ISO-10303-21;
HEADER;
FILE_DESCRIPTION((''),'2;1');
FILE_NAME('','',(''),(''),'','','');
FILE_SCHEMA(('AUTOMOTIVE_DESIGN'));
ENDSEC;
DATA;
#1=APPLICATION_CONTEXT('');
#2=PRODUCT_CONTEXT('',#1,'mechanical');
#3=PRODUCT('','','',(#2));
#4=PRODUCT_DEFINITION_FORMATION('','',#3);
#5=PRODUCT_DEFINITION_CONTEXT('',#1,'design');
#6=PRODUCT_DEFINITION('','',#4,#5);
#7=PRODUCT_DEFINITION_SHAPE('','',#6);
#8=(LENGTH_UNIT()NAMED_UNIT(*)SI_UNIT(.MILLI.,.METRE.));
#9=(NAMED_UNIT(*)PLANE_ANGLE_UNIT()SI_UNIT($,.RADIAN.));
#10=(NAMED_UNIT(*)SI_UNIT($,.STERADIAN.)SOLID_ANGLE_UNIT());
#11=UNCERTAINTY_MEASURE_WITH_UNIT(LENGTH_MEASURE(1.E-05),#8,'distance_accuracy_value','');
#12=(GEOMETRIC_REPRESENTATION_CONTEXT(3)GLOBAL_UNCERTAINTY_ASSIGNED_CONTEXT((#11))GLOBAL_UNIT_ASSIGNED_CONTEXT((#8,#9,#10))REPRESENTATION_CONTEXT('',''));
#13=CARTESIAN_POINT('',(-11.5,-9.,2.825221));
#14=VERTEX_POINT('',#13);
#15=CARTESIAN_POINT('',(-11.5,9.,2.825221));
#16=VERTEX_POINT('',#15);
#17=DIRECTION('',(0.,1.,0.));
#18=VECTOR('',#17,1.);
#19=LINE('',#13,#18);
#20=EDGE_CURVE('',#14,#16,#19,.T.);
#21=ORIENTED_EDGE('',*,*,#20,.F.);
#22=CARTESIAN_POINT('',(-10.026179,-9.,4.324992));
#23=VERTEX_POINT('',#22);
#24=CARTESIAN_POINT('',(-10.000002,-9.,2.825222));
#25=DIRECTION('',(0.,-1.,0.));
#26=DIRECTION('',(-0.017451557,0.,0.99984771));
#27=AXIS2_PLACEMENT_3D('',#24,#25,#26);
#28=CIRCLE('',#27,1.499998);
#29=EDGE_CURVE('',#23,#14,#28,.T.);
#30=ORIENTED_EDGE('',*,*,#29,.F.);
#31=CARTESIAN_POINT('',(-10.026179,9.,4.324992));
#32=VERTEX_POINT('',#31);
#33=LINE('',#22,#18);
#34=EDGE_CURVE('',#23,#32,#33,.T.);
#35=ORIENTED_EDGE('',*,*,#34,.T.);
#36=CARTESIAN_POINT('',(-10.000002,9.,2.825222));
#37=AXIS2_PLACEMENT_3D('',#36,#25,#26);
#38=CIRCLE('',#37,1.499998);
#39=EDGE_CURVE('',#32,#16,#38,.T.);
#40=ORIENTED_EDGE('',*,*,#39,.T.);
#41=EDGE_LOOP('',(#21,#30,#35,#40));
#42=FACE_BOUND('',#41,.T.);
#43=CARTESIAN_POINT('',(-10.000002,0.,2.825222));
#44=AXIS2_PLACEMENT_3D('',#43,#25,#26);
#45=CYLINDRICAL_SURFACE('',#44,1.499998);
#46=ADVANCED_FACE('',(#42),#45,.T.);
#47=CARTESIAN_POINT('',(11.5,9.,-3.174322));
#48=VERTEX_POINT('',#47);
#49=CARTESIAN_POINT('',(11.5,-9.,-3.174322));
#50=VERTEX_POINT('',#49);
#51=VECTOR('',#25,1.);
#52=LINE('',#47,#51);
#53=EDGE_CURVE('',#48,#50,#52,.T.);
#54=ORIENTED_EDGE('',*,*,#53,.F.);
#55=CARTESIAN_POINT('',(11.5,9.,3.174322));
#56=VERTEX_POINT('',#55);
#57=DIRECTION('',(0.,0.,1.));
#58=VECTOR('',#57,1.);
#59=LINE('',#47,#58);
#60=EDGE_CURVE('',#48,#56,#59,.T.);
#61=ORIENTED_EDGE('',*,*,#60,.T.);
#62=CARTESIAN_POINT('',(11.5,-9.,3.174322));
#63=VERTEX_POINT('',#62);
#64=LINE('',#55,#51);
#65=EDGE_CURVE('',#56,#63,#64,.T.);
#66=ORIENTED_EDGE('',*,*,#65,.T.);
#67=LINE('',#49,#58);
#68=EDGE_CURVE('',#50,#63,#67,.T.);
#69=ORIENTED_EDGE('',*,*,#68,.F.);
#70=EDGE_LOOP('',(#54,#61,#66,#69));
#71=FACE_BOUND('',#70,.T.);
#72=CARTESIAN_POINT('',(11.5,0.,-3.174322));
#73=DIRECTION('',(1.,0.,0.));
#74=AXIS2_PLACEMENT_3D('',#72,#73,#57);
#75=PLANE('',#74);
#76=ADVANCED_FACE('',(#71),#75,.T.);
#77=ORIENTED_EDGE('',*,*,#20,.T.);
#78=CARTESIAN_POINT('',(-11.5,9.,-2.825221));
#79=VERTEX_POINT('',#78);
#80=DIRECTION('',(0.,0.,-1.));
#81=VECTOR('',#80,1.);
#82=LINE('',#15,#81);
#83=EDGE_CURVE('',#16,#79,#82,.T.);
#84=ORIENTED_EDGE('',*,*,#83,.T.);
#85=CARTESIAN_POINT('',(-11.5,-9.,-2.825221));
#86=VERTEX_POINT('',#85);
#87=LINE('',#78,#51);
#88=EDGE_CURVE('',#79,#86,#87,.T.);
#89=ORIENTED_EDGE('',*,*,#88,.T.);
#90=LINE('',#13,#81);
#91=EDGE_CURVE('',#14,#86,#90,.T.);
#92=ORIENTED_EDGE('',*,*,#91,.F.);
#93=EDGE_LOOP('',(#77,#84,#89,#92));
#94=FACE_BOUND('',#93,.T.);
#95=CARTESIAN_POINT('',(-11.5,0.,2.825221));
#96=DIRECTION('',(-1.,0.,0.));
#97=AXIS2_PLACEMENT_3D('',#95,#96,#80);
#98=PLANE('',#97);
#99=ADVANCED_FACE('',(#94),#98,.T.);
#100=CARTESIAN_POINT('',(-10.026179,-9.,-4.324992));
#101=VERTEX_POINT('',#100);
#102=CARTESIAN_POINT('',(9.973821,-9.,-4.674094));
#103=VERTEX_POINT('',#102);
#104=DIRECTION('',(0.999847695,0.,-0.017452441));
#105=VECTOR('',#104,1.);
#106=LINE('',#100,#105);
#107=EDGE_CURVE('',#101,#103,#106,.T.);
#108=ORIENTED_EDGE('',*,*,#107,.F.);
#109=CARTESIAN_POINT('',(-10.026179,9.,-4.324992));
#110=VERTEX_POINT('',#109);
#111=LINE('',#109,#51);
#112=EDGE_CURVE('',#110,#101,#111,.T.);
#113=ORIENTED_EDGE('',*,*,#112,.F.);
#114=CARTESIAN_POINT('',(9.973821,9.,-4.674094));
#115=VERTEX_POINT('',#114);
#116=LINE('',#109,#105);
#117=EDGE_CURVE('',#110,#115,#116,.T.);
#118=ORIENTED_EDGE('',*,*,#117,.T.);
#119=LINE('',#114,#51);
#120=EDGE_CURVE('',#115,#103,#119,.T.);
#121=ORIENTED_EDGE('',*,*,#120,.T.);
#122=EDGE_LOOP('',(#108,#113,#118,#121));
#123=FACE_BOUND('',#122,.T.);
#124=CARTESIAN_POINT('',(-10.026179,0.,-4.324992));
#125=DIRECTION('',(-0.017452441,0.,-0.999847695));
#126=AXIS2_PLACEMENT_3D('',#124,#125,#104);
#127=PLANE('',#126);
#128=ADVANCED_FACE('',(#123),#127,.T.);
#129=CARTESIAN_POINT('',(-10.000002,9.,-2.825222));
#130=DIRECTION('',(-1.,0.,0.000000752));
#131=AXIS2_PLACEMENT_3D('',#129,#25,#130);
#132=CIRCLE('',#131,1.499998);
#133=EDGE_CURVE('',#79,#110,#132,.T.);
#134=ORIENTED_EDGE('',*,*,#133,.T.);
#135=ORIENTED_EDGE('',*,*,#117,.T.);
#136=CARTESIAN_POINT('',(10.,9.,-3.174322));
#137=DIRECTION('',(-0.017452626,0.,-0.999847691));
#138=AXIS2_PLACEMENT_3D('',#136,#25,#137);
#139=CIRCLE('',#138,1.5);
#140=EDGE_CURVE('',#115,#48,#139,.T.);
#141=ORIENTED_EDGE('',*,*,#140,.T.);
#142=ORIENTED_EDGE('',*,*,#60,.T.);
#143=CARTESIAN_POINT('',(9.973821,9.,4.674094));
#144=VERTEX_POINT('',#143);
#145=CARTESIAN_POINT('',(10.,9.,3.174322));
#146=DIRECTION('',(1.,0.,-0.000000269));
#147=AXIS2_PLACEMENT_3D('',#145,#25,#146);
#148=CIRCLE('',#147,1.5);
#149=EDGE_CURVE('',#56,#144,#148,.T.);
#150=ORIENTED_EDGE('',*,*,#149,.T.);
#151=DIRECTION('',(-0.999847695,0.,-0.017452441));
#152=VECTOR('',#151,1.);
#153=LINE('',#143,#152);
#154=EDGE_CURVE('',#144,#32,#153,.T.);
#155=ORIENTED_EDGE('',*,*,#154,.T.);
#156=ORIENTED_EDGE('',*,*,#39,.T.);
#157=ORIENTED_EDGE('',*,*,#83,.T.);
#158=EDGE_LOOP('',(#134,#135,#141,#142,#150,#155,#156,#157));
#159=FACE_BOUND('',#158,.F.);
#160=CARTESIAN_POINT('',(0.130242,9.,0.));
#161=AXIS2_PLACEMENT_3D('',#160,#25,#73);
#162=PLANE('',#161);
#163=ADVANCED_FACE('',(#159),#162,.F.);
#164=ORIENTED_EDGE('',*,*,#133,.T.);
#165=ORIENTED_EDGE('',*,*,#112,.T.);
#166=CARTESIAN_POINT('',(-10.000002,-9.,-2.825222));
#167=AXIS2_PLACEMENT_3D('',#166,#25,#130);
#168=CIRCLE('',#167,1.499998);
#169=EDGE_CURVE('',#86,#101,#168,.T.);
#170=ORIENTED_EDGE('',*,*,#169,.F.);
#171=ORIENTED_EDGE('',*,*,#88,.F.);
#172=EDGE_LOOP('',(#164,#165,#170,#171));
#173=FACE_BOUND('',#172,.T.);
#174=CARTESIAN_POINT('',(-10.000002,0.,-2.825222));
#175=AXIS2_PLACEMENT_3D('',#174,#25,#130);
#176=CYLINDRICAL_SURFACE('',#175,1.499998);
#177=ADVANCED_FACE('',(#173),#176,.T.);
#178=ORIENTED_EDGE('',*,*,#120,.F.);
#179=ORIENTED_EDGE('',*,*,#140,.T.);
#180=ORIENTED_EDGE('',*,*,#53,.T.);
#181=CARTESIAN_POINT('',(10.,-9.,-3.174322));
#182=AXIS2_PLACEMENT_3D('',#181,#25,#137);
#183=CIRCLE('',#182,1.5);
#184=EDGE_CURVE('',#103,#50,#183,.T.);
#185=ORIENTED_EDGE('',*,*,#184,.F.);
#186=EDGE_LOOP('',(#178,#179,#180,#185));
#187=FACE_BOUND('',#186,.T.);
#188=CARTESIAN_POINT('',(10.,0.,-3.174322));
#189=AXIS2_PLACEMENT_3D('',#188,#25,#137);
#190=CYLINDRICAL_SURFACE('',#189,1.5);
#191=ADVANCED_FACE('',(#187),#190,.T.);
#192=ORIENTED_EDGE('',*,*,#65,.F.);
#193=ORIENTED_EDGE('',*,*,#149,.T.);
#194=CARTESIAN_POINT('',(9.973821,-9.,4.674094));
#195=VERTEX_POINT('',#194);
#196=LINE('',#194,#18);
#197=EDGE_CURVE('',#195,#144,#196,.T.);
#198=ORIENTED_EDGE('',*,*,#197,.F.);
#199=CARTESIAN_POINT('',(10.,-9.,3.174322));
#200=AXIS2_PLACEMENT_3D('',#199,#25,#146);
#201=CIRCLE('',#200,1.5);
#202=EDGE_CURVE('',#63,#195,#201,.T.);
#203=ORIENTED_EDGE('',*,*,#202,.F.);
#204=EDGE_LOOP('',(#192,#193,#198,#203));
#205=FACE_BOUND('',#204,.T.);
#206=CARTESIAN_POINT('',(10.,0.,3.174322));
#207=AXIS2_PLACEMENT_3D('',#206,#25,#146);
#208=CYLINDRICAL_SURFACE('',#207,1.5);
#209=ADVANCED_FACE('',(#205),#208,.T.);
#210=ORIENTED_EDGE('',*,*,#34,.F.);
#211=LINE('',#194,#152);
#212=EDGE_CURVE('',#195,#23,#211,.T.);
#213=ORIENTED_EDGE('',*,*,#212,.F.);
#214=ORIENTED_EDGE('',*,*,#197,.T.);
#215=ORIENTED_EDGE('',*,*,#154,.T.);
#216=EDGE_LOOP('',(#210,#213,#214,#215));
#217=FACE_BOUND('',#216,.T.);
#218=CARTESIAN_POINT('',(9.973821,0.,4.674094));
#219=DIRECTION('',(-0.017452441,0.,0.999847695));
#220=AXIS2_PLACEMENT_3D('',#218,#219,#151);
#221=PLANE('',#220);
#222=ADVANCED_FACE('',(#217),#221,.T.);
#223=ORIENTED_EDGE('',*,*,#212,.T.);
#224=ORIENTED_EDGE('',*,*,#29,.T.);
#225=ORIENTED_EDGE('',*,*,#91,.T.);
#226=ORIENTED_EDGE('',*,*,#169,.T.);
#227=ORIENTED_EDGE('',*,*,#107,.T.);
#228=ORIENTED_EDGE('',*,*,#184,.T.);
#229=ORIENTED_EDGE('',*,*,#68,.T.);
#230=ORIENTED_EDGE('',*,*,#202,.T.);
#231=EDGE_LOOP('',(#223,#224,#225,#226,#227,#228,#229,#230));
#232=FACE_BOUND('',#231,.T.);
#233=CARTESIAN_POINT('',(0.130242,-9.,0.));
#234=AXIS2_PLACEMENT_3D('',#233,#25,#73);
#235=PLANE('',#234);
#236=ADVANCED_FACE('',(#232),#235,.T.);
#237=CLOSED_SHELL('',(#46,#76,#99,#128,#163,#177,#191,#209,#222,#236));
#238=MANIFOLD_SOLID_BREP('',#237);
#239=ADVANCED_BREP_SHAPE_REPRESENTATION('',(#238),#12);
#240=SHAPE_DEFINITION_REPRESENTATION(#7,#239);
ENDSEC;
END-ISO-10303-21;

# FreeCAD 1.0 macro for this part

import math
import FreeCAD as App
import Part
import Sketcher
from FreeCAD import Vector
Q = App.Units.Quantity

doc = App.newDocument("Part")
body = doc.addObject("PartDesign::Body", "Body")

# Sketch on XZ plane
sketch1 = body.newObject("Sketcher::SketchObject", "Sketch")
sketch1.AttachmentSupport = (doc.getObject("XZ_Plane"), [""])
sketch1.MapMode = "FlatFace"
sketch1.addGeometry([
    Part.LineSegment(Vector(-11.5, 2.8, 0), Vector(-11.5, -2.8, 0)),  # 0
    Part.ArcOfCircle(Part.Circle(Vector(-10, -2.8, 0), Vector(0, 0, 1), 1.5), math.radians(180), math.radians(269)),  # 1
    Part.LineSegment(Vector(-10, -4.3, 0), Vector(10, -4.7, 0)),  # 2
    Part.ArcOfCircle(Part.Circle(Vector(10, -3.2, 0), Vector(0, 0, 1), 1.5), math.radians(-91), math.radians(0)),  # 3
    Part.LineSegment(Vector(11.5, -3.2, 0), Vector(11.5, 3.2, 0)),  # 4
    Part.ArcOfCircle(Part.Circle(Vector(10, 3.2, 0), Vector(0, 0, 1), 1.5), math.radians(0), math.radians(91)),  # 5
    Part.LineSegment(Vector(10, 4.7, 0), Vector(-10, 4.3, 0)),  # 6
    Part.ArcOfCircle(Part.Circle(Vector(-10, 2.8, 0), Vector(0, 0, 1), 1.5), math.radians(91), math.radians(180)),  # 7
], False)
sketch1.addConstraint([
    Sketcher.Constraint("Tangent", 0, 2, 1, 1),
    Sketcher.Constraint("Tangent", 1, 2, 2, 1),
    Sketcher.Constraint("Tangent", 2, 2, 3, 1),
    Sketcher.Constraint("Tangent", 3, 2, 4, 1),
    Sketcher.Constraint("Tangent", 4, 2, 5, 1),
    Sketcher.Constraint("Tangent", 5, 2, 6, 1),
    Sketcher.Constraint("Tangent", 6, 2, 7, 1),
    Sketcher.Constraint("Tangent", 7, 2, 0, 1),
    Sketcher.Constraint("Vertical", 0),
    Sketcher.Constraint("Vertical", 4),
    Sketcher.Constraint("Equal", 1, 3),
    Sketcher.Constraint("Equal", 3, 5),
    Sketcher.Constraint("Equal", 5, 7),
    Sketcher.Constraint("Symmetric", 2, 2, 5, 2, -1),
    Sketcher.Constraint("Radius", 1, Q("1.499998 mm")),
    Sketcher.Constraint("Angle", 2, Q("-1.000002 deg")),
    Sketcher.Constraint("DistanceX", 1, 3, -1, 1, Q("10.000002 mm")),
    Sketcher.Constraint("DistanceX", -1, 1, 3, 3, Q("10 mm")),
    Sketcher.Constraint("DistanceY", 0, 2, 0, 1, Q("5.650442 mm")),
])
pad1 = body.newObject("PartDesign::Pad", "Pad")
pad1.Profile = sketch1
pad1.Length = 18
pad1.Midplane = True

doc.recompute()
